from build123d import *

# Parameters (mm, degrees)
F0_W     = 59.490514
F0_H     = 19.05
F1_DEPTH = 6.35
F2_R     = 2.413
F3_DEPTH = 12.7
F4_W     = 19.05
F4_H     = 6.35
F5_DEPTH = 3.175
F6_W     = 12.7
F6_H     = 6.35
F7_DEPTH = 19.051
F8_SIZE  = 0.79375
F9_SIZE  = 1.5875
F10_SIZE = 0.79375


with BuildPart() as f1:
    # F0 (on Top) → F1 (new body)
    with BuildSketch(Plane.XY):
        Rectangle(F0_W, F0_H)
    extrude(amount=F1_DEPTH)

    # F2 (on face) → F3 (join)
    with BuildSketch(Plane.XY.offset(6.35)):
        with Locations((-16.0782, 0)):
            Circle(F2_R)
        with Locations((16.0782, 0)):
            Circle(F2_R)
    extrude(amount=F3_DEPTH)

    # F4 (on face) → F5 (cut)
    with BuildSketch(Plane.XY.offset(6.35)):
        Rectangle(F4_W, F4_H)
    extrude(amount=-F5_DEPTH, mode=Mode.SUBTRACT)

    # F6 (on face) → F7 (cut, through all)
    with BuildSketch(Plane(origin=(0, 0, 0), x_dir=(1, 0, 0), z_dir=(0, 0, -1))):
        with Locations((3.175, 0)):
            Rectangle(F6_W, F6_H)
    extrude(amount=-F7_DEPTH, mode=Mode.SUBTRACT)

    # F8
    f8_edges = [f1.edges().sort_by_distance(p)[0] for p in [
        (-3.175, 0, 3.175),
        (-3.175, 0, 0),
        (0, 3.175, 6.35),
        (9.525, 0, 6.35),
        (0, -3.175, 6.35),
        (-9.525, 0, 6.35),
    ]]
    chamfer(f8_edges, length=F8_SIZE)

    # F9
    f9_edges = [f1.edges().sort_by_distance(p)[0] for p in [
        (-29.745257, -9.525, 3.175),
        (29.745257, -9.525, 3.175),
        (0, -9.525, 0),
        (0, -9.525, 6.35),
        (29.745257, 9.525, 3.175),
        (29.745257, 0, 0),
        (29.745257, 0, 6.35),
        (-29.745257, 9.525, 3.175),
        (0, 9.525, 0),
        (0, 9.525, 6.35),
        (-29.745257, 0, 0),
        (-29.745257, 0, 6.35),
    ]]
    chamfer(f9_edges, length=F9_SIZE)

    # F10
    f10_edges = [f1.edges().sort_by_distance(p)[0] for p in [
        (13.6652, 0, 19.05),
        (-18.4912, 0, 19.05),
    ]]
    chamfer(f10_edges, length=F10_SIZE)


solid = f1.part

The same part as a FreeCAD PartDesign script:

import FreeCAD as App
import Part
import Sketcher

V = App.Vector
Q = App.Units.Quantity


def edges_at(feature, points):
    """Names of the edges that pass closest to the given points."""
    edges = feature.Shape.Edges
    near = lambda p: min(range(len(edges)), key=lambda i: edges[i].distToShape(Part.Vertex(*p))[0])
    return sorted({f"Edge{near(p) + 1}" for p in points})

doc = App.newDocument("Part")
params = doc.addObject("Spreadsheet::Sheet", "Params")
for row, (alias, value) in enumerate([
    ("sketch1_height", "0.75 in"),
    ("pad1_length", "0.25 in"),
    ("sketch2_diameter", "0.19 in"),
    ("pad2_length", "0.5 in"),
    ("sketch3_width", "0.75 in"),
    ("sketch3_height", "0.25 in"),
    ("pocket1_length", "0.125 in"),
    ("sketch4_width", "0.5 in"),
    ("sketch4_height", "0.25 in"),
    ("chamfer_size", "0.03125 in"),
    ("chamfer2_size", "0.0625 in"),
    ("chamfer3_size", "0.03125 in"),
], start=1):
    params.set(f"A{row}", alias)
    params.set(f"B{row}", "=" + value)
    params.setAlias(f"B{row}", alias)

body = doc.addObject("PartDesign::Body", "Body")

# Sketch on XY plane
sketch1 = body.newObject("Sketcher::SketchObject", "Sketch")
sketch1.AttachmentSupport = (doc.getObject("XY_Plane"), [""])
sketch1.MapMode = "FlatFace"
sketch1.addGeometry([
    Part.LineSegment(V(-30, 10, 0), V(-30, -10, 0)),
    Part.LineSegment(V(-30, -10, 0), V(30, -10, 0)),
    Part.LineSegment(V(30, -10, 0), V(30, 10, 0)),
    Part.LineSegment(V(30, 10, 0), V(-30, 10, 0)),
], False)
sketch1.addConstraint([
    Sketcher.Constraint("Coincident", 0, 2, 1, 1),
    Sketcher.Constraint("Coincident", 1, 2, 2, 1),
    Sketcher.Constraint("Coincident", 2, 2, 3, 1),
    Sketcher.Constraint("Coincident", 3, 2, 0, 1),
    Sketcher.Constraint("Vertical", 0),
    Sketcher.Constraint("Horizontal", 1),
    Sketcher.Constraint("Vertical", 2),
    Sketcher.Constraint("Horizontal", 3),
    Sketcher.Constraint("Symmetric", 0, 2, 2, 2, -1, 1),
    Sketcher.Constraint("DistanceY", 0, 2, 0, 1, Q("0.75 in")),
    Sketcher.Constraint("DistanceX", 1, 1, 1, 2, 59.490514),
])
sketch1.setExpression("Constraints[9]", "Params.sketch1_height")
pad1 = body.newObject("PartDesign::Pad", "Pad")
pad1.Profile = sketch1
pad1.setExpression("Length", "Params.pad1_length")

# Sketch on XY plane
sketch2 = body.newObject("Sketcher::SketchObject", "Sketch001")
sketch2.AttachmentSupport = (doc.getObject("XY_Plane"), [""])
sketch2.MapMode = "FlatFace"
sketch2.AttachmentOffset = App.Placement(V(0, 0, 0.25 * 25.4), App.Rotation())
sketch2.addGeometry([
    Part.Circle(V(-16.1, 0, 0), V(0, 0, 1), 2.4),
    Part.Circle(V(16.1, 0, 0), V(0, 0, 1), 2.4),
], False)
sketch2.addConstraint([
    Sketcher.Constraint("Equal", 0, 1),
    Sketcher.Constraint("Symmetric", 0, 3, 1, 3, -1, 1),
    Sketcher.Constraint("PointOnObject", 0, 3, -1),
    Sketcher.Constraint("Diameter", 0, Q("0.19 in")),
    Sketcher.Constraint("DistanceX", 0, 3, -1, 1, Q("0.633 in")),
])
sketch2.setExpression("Constraints[3]", "Params.sketch2_diameter")
pad2 = body.newObject("PartDesign::Pad", "Pad001")
pad2.Profile = sketch2
pad2.setExpression("Length", "Params.pad2_length")

# Sketch on XY plane
sketch3 = body.newObject("Sketcher::SketchObject", "Sketch002")
sketch3.AttachmentSupport = (doc.getObject("XY_Plane"), [""])
sketch3.MapMode = "FlatFace"
sketch3.AttachmentOffset = App.Placement(V(0, 0, 0.25 * 25.4), App.Rotation())
sketch3.addGeometry([
    Part.LineSegment(V(-10, 3, 0), V(-10, -3, 0)),
    Part.LineSegment(V(-10, -3, 0), V(10, -3, 0)),
    Part.LineSegment(V(10, -3, 0), V(10, 3, 0)),
    Part.LineSegment(V(10, 3, 0), V(-10, 3, 0)),
], False)
sketch3.addConstraint([
    Sketcher.Constraint("Coincident", 0, 2, 1, 1),
    Sketcher.Constraint("Coincident", 1, 2, 2, 1),
    Sketcher.Constraint("Coincident", 2, 2, 3, 1),
    Sketcher.Constraint("Coincident", 3, 2, 0, 1),
    Sketcher.Constraint("Vertical", 0),
    Sketcher.Constraint("Horizontal", 1),
    Sketcher.Constraint("Vertical", 2),
    Sketcher.Constraint("Horizontal", 3),
    Sketcher.Constraint("Symmetric", 0, 2, 2, 2, -1, 1),
    Sketcher.Constraint("DistanceX", 1, 1, 1, 2, Q("0.75 in")),
    Sketcher.Constraint("DistanceY", 0, 2, 0, 1, Q("0.25 in")),
])
sketch3.setExpression("Constraints[9]", "Params.sketch3_width")
sketch3.setExpression("Constraints[10]", "Params.sketch3_height")
pocket1 = body.newObject("PartDesign::Pocket", "Pocket")
pocket1.Profile = sketch3
pocket1.setExpression("Length", "Params.pocket1_length")

# Sketch on XY plane
sketch4 = body.newObject("Sketcher::SketchObject", "Sketch003")
sketch4.AttachmentSupport = (doc.getObject("XY_Plane"), [""])
sketch4.MapMode = "FlatFace"
sketch4.addGeometry([
    Part.LineSegment(V(-3, -3, 0), V(-3, 3, 0)),
    Part.LineSegment(V(-3, 3, 0), V(10, 3, 0)),
    Part.LineSegment(V(10, 3, 0), V(10, -3, 0)),
    Part.LineSegment(V(10, -3, 0), V(-3, -3, 0)),
], False)
sketch4.addConstraint([
    Sketcher.Constraint("Coincident", 0, 2, 1, 1),
    Sketcher.Constraint("Coincident", 1, 2, 2, 1),
    Sketcher.Constraint("Coincident", 2, 2, 3, 1),
    Sketcher.Constraint("Coincident", 3, 2, 0, 1),
    Sketcher.Constraint("Vertical", 0),
    Sketcher.Constraint("Horizontal", 1),
    Sketcher.Constraint("Vertical", 2),
    Sketcher.Constraint("Horizontal", 3),
    Sketcher.Constraint("DistanceX", 1, 1, 1, 2, Q("0.5 in")),
    Sketcher.Constraint("DistanceY", 0, 1, 0, 2, Q("0.25 in")),
    Sketcher.Constraint("DistanceX", 0, 2, -1, 1, Q("0.125 in")),
    Sketcher.Constraint("DistanceY", -1, 1, 0, 2, Q("0.125 in")),
])
sketch4.setExpression("Constraints[8]", "Params.sketch4_width")
sketch4.setExpression("Constraints[9]", "Params.sketch4_height")
pocket2 = body.newObject("PartDesign::Pocket", "Pocket001")
pocket2.Profile = sketch4
pocket2.Type = "ThroughAll"
pocket2.Reversed = True
doc.recompute()

chamfer = body.newObject("PartDesign::Chamfer", "Chamfer")
chamfer.Base = (pocket2, edges_at(pocket2, [
    (-3.175, 0, 3.175),
    (-3.175, 0, 0),
    (0, 3.175, 6.35),
    (9.525, 0, 6.35),
    (0, -3.175, 6.35),
    (-9.525, 0, 6.35),
]))
chamfer.setExpression("Size", "Params.chamfer_size")
doc.recompute()

chamfer2 = body.newObject("PartDesign::Chamfer", "Chamfer001")
chamfer2.Base = (chamfer, edges_at(chamfer, [
    (-29.745, -9.525, 3.175),
    (29.745, -9.525, 3.175),
    (0, -9.525, 0),
    (0, -9.525, 6.35),
    (29.745, 9.525, 3.175),
    (29.745, 0, 0),
    (29.745, 0, 6.35),
    (-29.745, 9.525, 3.175),
    (0, 9.525, 0),
    (0, 9.525, 6.35),
    (-29.745, 0, 0),
    (-29.745, 0, 6.35),
]))
chamfer2.setExpression("Size", "Params.chamfer2_size")
doc.recompute()

chamfer3 = body.newObject("PartDesign::Chamfer", "Chamfer002")
chamfer3.Base = (chamfer2, edges_at(chamfer2, [(13.665, 0, 19.05), (-18.491, 0, 19.05)]))
chamfer3.setExpression("Size", "Params.chamfer3_size")

doc.recompute()
